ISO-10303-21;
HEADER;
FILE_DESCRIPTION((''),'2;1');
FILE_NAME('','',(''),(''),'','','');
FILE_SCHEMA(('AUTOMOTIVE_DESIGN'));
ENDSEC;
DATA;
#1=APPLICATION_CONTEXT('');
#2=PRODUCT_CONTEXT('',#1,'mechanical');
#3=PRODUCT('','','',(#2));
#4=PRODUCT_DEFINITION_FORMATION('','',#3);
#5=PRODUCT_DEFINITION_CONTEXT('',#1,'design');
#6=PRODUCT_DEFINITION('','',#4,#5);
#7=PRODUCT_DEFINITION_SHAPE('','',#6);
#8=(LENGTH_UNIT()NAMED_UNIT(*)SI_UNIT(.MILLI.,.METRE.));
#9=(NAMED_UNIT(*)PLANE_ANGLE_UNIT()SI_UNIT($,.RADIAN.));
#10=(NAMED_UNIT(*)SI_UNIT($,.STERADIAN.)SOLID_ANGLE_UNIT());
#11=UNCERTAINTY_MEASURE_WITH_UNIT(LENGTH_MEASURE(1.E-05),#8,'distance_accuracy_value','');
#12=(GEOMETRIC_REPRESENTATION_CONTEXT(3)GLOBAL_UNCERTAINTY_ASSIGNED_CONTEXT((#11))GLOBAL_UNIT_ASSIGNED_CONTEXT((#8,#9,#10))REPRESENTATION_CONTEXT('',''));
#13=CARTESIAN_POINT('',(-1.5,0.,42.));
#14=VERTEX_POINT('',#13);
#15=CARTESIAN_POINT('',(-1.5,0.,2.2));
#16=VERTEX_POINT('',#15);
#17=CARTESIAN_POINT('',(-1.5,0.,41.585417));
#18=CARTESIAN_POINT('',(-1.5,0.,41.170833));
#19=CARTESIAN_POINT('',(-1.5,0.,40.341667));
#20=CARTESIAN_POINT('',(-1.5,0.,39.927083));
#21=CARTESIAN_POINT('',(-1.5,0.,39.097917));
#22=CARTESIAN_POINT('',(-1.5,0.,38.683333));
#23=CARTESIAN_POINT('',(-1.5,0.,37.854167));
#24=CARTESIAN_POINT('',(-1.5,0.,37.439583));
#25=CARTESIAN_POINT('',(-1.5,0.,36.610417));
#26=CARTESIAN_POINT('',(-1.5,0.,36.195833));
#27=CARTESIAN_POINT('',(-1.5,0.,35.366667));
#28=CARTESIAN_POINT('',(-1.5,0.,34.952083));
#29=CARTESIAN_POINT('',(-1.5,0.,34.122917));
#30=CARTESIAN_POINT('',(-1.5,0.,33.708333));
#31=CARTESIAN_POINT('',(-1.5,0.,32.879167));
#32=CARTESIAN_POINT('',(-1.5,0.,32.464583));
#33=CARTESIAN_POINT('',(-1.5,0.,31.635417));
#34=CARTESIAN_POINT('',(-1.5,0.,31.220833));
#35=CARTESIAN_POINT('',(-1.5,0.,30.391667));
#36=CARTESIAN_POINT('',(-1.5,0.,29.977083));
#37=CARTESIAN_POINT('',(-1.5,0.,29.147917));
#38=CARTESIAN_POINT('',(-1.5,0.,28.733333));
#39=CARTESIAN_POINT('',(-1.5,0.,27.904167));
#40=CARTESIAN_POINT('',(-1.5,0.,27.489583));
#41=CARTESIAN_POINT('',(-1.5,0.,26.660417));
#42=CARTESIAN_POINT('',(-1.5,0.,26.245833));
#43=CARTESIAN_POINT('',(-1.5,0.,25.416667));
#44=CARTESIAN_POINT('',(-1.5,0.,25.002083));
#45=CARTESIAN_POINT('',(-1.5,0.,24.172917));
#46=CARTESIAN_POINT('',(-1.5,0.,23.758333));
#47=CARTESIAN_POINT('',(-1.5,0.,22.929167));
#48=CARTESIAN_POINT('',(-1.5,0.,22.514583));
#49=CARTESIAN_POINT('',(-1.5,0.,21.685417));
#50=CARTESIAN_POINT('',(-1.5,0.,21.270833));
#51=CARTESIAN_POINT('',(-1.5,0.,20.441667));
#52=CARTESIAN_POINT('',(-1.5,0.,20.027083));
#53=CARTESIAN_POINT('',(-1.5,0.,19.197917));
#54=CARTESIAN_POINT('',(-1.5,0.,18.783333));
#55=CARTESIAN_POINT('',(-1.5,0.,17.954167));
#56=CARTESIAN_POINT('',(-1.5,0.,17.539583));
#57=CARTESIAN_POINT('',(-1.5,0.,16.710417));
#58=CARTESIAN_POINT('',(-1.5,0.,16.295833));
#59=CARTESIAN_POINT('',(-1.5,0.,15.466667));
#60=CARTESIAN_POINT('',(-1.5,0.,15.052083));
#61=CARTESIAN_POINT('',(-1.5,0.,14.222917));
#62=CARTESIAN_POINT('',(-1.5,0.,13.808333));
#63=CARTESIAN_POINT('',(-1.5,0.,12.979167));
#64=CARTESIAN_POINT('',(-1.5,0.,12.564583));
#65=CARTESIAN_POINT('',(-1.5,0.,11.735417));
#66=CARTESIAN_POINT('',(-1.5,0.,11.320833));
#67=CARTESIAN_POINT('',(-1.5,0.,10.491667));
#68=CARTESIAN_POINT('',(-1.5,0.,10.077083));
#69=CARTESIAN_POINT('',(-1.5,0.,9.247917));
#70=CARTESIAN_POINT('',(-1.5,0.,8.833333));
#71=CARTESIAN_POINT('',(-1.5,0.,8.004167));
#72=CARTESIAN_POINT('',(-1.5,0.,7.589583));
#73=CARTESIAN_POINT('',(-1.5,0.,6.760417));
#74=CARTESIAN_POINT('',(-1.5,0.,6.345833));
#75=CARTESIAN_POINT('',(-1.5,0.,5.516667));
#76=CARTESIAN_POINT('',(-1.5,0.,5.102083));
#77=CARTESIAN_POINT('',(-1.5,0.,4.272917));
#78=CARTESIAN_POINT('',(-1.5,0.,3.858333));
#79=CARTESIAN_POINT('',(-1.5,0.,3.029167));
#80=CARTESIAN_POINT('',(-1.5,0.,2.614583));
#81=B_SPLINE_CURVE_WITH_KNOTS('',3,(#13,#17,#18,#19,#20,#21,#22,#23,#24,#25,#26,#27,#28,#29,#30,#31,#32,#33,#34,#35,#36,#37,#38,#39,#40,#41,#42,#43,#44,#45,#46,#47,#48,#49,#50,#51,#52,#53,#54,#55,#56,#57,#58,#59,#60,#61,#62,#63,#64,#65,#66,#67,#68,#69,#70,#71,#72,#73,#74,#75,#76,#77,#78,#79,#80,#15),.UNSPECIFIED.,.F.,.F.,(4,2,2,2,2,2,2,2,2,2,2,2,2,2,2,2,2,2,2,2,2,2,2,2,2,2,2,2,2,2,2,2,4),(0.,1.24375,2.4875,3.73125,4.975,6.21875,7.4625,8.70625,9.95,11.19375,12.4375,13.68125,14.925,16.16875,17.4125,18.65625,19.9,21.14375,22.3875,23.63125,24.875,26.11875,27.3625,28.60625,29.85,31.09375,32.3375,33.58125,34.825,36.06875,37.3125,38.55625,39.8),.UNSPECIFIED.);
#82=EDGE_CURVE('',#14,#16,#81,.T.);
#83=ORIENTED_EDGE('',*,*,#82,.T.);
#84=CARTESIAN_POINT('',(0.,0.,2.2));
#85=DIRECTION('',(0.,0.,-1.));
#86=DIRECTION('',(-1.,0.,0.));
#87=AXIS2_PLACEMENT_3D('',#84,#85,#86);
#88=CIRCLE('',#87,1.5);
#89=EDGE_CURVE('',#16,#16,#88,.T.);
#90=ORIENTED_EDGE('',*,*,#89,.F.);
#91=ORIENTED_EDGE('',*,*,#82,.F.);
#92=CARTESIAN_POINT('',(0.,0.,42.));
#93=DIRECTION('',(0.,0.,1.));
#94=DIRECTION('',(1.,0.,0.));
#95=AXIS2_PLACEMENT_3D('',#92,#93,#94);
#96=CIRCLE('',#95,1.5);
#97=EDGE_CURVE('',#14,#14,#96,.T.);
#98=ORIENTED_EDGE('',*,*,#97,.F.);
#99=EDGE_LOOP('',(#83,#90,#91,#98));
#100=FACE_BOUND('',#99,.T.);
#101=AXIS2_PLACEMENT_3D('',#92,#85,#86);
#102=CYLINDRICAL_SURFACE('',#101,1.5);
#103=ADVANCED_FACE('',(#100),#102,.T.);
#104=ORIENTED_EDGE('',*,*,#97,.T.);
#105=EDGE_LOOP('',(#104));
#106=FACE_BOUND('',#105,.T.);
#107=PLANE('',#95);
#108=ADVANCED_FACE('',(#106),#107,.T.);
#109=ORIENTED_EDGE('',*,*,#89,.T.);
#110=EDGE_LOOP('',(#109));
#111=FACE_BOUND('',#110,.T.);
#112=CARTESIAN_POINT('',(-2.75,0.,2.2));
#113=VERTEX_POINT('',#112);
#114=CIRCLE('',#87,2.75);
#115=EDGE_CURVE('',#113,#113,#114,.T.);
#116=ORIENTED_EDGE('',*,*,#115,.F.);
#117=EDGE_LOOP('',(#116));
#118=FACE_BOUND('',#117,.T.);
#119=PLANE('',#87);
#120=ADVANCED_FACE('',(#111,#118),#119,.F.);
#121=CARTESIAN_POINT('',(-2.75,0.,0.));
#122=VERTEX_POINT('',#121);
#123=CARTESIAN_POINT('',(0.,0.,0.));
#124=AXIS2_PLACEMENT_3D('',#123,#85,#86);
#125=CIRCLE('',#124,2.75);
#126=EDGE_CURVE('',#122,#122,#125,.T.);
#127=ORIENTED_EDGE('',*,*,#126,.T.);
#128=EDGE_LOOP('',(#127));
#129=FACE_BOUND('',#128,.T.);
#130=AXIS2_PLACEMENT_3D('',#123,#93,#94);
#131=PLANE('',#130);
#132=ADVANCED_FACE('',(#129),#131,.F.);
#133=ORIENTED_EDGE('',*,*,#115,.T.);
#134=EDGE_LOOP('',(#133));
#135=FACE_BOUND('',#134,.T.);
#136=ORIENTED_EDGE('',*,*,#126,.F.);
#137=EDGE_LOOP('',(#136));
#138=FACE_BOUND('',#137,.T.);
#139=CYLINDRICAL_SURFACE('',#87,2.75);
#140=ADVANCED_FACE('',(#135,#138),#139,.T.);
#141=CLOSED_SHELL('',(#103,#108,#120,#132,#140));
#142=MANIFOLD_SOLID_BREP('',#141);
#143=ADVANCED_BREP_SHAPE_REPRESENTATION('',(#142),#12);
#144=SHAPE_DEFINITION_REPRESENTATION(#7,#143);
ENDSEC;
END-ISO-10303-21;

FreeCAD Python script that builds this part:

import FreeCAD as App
import Part
import Sketcher

V = App.Vector

doc = App.newDocument("Part")
body = doc.addObject("PartDesign::Body", "Body")

# Sketch on XY plane
sketch1 = body.newObject("Sketcher::SketchObject", "Sketch")
sketch1.AttachmentSupport = (doc.getObject("XY_Plane"), [""])
sketch1.MapMode = "FlatFace"
sketch1.addGeometry(Part.Circle(V(0, 0, 0), V(0, 0, 1), 1.5), False)
sketch1.addConstraint(Sketcher.Constraint("Coincident", 0, 3, -1, 1))
sketch1.addConstraint(Sketcher.Constraint("Diameter", 0, 3.0))
pad1 = body.newObject("PartDesign::Pad", "Pad")
pad1.Profile = sketch1
pad1.Length = 42

# Sketch on XY plane
sketch2 = body.newObject("Sketcher::SketchObject", "Sketch001")
sketch2.AttachmentSupport = (doc.getObject("XY_Plane"), [""])
sketch2.MapMode = "FlatFace"
sketch2.addGeometry(Part.Circle(V(0, 0, 0), V(0, 0, 1), 2.75), False)
sketch2.addConstraint(Sketcher.Constraint("Coincident", 0, 3, -1, 1))
sketch2.addConstraint(Sketcher.Constraint("Diameter", 0, 5.5))
pad2 = body.newObject("PartDesign::Pad", "Pad001")
pad2.Profile = sketch2
pad2.Length = 2.2

doc.recompute()
